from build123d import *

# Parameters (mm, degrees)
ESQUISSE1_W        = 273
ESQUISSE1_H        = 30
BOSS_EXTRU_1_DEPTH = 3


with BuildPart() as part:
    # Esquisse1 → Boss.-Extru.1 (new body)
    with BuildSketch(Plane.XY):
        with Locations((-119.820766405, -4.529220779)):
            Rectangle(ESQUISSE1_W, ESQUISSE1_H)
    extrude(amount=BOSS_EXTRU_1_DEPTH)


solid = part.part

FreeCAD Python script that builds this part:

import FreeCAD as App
import Part
import Sketcher
from FreeCAD import Vector

doc = App.newDocument("Part")
params = doc.addObject("Spreadsheet::Sheet", "Params")
for row, (alias, value) in enumerate([
    ("sketch1_width", "273 mm"),
    ("sketch1_height", "30 mm"),
    ("pad1_length", "3 mm"),
], start=1):
    params.set(f"A{row}", alias)
    params.set(f"B{row}", "=" + value)
    params.setAlias(f"B{row}", alias)

body = doc.addObject("PartDesign::Body", "Body")

sketch1 = body.newObject("Sketcher::SketchObject", "Sketch")
sketch1.AttachmentSupport = (doc.getObject("XY_Plane"), [""])
sketch1.MapMode = "FlatFace"
sketch1.addGeometry([
    Part.LineSegment(Vector(-256, 10, 0), Vector(-256, -20, 0)),
    Part.LineSegment(Vector(-256, -20, 0), Vector(17, -20, 0)),
    Part.LineSegment(Vector(17, -20, 0), Vector(17, 10, 0)),
    Part.LineSegment(Vector(17, 10, 0), Vector(-256, 10, 0)),
], False)
sketch1.addConstraint([
    Sketcher.Constraint("Coincident", 0, 2, 1, 1),
    Sketcher.Constraint("Coincident", 1, 2, 2, 1),
    Sketcher.Constraint("Coincident", 2, 2, 3, 1),
    Sketcher.Constraint("Coincident", 3, 2, 0, 1),
    Sketcher.Constraint("Vertical", 0),
    Sketcher.Constraint("Horizontal", 1),
    Sketcher.Constraint("Vertical", 2),
    Sketcher.Constraint("Horizontal", 3),
    Sketcher.Constraint("DistanceX", 1, 1, 1, 2, 273.0),
    Sketcher.Constraint("DistanceY", 0, 2, 0, 1, 30.0),
    Sketcher.Constraint("DistanceY", 0, 2, -1, 1, 19.529221),
    Sketcher.Constraint("DistanceX", 0, 2, -1, 1, 256.320766),
])
sketch1.setExpression("Constraints[8]", "Params.sketch1_width")
sketch1.setExpression("Constraints[9]", "Params.sketch1_height")
pad1 = body.newObject("PartDesign::Pad", "Pad")
pad1.Profile = sketch1
pad1.setExpression("Length", "Params.pad1_length")

doc.recompute()
